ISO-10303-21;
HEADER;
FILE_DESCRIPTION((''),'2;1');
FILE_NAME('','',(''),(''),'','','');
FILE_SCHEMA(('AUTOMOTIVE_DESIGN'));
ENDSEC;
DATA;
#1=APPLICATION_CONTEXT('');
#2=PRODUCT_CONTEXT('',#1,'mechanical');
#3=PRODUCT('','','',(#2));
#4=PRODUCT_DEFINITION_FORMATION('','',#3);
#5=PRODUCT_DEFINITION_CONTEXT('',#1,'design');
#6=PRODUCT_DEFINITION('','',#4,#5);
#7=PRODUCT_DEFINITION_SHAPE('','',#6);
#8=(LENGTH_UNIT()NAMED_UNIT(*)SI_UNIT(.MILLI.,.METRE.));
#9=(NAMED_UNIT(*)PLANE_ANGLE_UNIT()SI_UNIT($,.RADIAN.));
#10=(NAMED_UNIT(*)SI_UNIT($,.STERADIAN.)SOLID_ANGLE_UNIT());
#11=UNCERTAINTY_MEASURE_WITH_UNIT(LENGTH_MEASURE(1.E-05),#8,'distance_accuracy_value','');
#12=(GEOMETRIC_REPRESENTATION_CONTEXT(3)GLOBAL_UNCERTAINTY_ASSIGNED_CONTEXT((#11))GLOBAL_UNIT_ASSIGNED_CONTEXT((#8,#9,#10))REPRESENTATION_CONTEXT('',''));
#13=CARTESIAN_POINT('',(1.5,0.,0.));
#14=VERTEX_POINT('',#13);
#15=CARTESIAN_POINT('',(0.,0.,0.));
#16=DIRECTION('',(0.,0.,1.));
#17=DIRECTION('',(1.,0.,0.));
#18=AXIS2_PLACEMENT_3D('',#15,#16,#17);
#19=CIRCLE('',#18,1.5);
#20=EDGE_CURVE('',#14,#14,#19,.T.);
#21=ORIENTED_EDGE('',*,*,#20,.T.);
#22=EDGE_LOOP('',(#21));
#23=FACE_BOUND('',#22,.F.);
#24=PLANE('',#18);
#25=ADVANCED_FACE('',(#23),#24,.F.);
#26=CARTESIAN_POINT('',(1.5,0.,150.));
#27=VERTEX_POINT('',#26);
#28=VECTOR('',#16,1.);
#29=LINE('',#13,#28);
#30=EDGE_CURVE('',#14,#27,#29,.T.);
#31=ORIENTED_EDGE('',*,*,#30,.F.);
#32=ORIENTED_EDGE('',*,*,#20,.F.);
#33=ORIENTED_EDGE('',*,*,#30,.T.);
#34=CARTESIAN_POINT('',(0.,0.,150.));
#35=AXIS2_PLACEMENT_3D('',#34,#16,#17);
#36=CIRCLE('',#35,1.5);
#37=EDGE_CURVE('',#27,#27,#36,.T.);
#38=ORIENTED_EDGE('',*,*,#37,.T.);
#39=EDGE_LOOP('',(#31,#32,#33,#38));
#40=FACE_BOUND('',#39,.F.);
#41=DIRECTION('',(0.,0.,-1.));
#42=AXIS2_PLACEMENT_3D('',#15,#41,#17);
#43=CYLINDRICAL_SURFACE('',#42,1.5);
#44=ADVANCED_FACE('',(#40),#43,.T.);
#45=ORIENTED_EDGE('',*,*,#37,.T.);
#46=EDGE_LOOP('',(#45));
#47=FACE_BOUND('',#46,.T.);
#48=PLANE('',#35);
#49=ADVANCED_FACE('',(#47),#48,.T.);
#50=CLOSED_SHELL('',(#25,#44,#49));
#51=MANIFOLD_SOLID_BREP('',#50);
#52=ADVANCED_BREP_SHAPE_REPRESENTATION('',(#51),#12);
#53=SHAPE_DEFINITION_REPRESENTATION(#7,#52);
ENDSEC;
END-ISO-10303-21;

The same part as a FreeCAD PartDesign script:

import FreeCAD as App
import Part
import Sketcher
from FreeCAD import Vector

doc = App.newDocument("Part")
body = doc.addObject("PartDesign::Body", "Body")

# Sketch on XY plane
sketch1 = body.newObject("Sketcher::SketchObject", "Sketch")
sketch1.AttachmentSupport = (doc.getObject("XY_Plane"), [""])
sketch1.MapMode = "FlatFace"
sketch1.addGeometry(Part.Circle(Vector(0, 0, 0), Vector(0, 0, 1), 1.5), False)
sketch1.addConstraint([
    Sketcher.Constraint("Coincident", 0, 3, -1, 1),
    Sketcher.Constraint("Diameter", 0, 3.0),
])
pad1 = body.newObject("PartDesign::Pad", "Pad")
pad1.Profile = sketch1
pad1.Length = 150

doc.recompute()
